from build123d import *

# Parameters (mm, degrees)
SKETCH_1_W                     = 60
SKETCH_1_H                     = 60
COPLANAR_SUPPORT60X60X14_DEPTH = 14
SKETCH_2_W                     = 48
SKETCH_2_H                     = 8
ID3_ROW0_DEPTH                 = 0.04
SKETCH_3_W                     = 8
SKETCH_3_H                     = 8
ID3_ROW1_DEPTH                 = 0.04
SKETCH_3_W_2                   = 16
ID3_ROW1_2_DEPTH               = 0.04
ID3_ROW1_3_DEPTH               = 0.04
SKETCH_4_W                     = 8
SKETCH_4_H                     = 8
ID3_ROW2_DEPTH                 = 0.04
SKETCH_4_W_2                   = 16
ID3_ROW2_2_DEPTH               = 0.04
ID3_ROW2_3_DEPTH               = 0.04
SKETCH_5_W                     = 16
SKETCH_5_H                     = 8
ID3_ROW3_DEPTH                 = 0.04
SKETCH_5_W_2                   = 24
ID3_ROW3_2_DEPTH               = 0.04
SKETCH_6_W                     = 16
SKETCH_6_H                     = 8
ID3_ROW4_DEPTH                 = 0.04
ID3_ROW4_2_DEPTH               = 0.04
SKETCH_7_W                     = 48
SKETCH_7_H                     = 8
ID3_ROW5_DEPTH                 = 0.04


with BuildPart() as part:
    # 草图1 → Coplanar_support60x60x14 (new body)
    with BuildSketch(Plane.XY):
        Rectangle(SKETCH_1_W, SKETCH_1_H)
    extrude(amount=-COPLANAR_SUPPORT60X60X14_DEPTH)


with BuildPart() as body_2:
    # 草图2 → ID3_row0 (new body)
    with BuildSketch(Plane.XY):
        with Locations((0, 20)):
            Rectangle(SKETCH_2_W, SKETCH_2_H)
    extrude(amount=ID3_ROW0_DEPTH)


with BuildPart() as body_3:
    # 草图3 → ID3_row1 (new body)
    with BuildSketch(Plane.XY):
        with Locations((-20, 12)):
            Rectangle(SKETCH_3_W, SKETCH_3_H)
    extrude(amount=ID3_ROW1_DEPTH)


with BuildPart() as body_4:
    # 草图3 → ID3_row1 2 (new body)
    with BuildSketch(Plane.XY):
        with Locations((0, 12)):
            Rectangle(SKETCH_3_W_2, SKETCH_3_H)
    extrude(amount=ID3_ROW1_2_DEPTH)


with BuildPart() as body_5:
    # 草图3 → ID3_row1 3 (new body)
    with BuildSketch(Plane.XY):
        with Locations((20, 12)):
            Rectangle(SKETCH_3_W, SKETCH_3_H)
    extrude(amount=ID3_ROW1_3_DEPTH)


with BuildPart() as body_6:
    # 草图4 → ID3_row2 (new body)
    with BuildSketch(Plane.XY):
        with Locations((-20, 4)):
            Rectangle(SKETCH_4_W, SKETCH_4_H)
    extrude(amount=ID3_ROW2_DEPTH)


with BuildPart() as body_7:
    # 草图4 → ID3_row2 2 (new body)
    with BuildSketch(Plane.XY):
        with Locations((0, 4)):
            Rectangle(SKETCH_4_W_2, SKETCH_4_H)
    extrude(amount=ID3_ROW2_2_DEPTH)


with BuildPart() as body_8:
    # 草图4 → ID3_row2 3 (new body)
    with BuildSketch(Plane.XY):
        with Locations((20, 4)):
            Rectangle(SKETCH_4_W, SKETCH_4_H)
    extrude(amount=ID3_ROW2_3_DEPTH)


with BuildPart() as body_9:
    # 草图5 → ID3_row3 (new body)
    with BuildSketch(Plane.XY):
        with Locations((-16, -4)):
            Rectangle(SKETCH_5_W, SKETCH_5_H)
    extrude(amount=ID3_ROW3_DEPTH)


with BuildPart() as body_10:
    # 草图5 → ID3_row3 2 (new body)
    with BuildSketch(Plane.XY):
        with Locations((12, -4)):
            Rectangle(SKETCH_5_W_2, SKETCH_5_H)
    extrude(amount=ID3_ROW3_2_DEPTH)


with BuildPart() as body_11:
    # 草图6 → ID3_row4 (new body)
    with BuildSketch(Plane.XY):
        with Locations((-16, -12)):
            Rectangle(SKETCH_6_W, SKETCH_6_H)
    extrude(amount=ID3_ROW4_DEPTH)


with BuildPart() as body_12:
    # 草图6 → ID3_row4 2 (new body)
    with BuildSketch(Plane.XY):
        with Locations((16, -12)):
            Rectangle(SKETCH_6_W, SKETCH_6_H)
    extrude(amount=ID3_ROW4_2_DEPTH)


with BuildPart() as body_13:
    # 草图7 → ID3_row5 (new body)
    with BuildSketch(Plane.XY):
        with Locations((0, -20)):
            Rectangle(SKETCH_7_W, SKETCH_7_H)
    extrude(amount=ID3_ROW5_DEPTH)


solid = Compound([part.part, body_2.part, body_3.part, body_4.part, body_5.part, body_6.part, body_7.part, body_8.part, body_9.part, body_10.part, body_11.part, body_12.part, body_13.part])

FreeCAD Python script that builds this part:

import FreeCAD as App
import Part
import Sketcher
from FreeCAD import Vector

doc = App.newDocument("Part")
body = doc.addObject("PartDesign::Body", "Body")

# Sketch on XY plane
sketch1 = doc.addObject("Sketcher::SketchObject", "Sketch")
body.addObject(sketch1)
sketch1.AttachmentSupport = (doc.XY_Plane, [""])
sketch1.MapMode = "FlatFace"
sketch1.addGeometry(Part.LineSegment(Vector(-30, 30, 0), Vector(-30, -30, 0)), False)
sketch1.addGeometry(Part.LineSegment(Vector(-30, -30, 0), Vector(30, -30, 0)), False)
sketch1.addGeometry(Part.LineSegment(Vector(30, -30, 0), Vector(30, 30, 0)), False)
sketch1.addGeometry(Part.LineSegment(Vector(30, 30, 0), Vector(-30, 30, 0)), False)
sketch1.addConstraint(Sketcher.Constraint("Coincident", 0, 2, 1, 1))
sketch1.addConstraint(Sketcher.Constraint("Coincident", 1, 2, 2, 1))
sketch1.addConstraint(Sketcher.Constraint("Coincident", 2, 2, 3, 1))
sketch1.addConstraint(Sketcher.Constraint("Coincident", 3, 2, 0, 1))
sketch1.addConstraint(Sketcher.Constraint("Vertical", 0))
sketch1.addConstraint(Sketcher.Constraint("Horizontal", 1))
sketch1.addConstraint(Sketcher.Constraint("Vertical", 2))
sketch1.addConstraint(Sketcher.Constraint("Horizontal", 3))
sketch1.addConstraint(Sketcher.Constraint("Symmetric", 0, 2, 2, 2, -1, 1))
sketch1.addConstraint(Sketcher.Constraint("Equal", 3, 0))
sketch1.addConstraint(Sketcher.Constraint("DistanceX", 1, 1, 1, 2, 60.0))
pad1 = doc.addObject("PartDesign::Pad", "Pad")
body.addObject(pad1)
pad1.Profile = sketch1
pad1.Length = 14
pad1.Reversed = True
body2 = doc.addObject("PartDesign::Body", "Body001")

# Sketch on XY plane
sketch2 = doc.addObject("Sketcher::SketchObject", "Sketch001")
body2.addObject(sketch2)
sketch2.AttachmentSupport = (doc.getObject("XY_Plane001"), [""])
sketch2.MapMode = "FlatFace"
sketch2.addGeometry(Part.LineSegment(Vector(-24, 24, 0), Vector(-24, 16, 0)), False)
sketch2.addGeometry(Part.LineSegment(Vector(-24, 16, 0), Vector(24, 16, 0)), False)
sketch2.addGeometry(Part.LineSegment(Vector(24, 16, 0), Vector(24, 24, 0)), False)
sketch2.addGeometry(Part.LineSegment(Vector(24, 24, 0), Vector(-24, 24, 0)), False)
sketch2.addConstraint(Sketcher.Constraint("Coincident", 0, 2, 1, 1))
sketch2.addConstraint(Sketcher.Constraint("Coincident", 1, 2, 2, 1))
sketch2.addConstraint(Sketcher.Constraint("Coincident", 2, 2, 3, 1))
sketch2.addConstraint(Sketcher.Constraint("Coincident", 3, 2, 0, 1))
sketch2.addConstraint(Sketcher.Constraint("Vertical", 0))
sketch2.addConstraint(Sketcher.Constraint("Horizontal", 1))
sketch2.addConstraint(Sketcher.Constraint("Vertical", 2))
sketch2.addConstraint(Sketcher.Constraint("Horizontal", 3))
sketch2.addConstraint(Sketcher.Constraint("DistanceX", 1, 1, 1, 2, 48.0))
sketch2.addConstraint(Sketcher.Constraint("DistanceY", 0, 2, 0, 1, 8.0))
sketch2.addConstraint(Sketcher.Constraint("DistanceX", 0, 2, -1, 1, 24.0))
sketch2.addConstraint(Sketcher.Constraint("DistanceY", -1, 1, 0, 2, 16.0))
pad2 = doc.addObject("PartDesign::Pad", "Pad001")
body2.addObject(pad2)
pad2.Profile = sketch2
pad2.Length = 0.04
body3 = doc.addObject("PartDesign::Body", "Body002")

# Sketch on XY plane
sketch3 = doc.addObject("Sketcher::SketchObject", "Sketch002")
body3.addObject(sketch3)
sketch3.AttachmentSupport = (doc.getObject("XY_Plane002"), [""])
sketch3.MapMode = "FlatFace"
sketch3.addGeometry(Part.LineSegment(Vector(-24, 16, 0), Vector(-24, 8, 0)), False)
sketch3.addGeometry(Part.LineSegment(Vector(-24, 8, 0), Vector(-16, 8, 0)), False)
sketch3.addGeometry(Part.LineSegment(Vector(-16, 8, 0), Vector(-16, 16, 0)), False)
sketch3.addGeometry(Part.LineSegment(Vector(-16, 16, 0), Vector(-24, 16, 0)), False)
sketch3.addConstraint(Sketcher.Constraint("Coincident", 0, 2, 1, 1))
sketch3.addConstraint(Sketcher.Constraint("Coincident", 1, 2, 2, 1))
sketch3.addConstraint(Sketcher.Constraint("Coincident", 2, 2, 3, 1))
sketch3.addConstraint(Sketcher.Constraint("Coincident", 3, 2, 0, 1))
sketch3.addConstraint(Sketcher.Constraint("Vertical", 0))
sketch3.addConstraint(Sketcher.Constraint("Horizontal", 1))
sketch3.addConstraint(Sketcher.Constraint("Vertical", 2))
sketch3.addConstraint(Sketcher.Constraint("Horizontal", 3))
sketch3.addConstraint(Sketcher.Constraint("Equal", 3, 0))
sketch3.addConstraint(Sketcher.Constraint("DistanceX", 1, 1, 1, 2, 8.0))
sketch3.addConstraint(Sketcher.Constraint("DistanceX", 0, 2, -1, 1, 24.0))
sketch3.addConstraint(Sketcher.Constraint("DistanceY", -1, 1, 0, 2, 8.0))
pad3 = doc.addObject("PartDesign::Pad", "Pad002")
body3.addObject(pad3)
pad3.Profile = sketch3
pad3.Length = 0.04
body4 = doc.addObject("PartDesign::Body", "Body003")

# Sketch on XY plane
sketch4 = doc.addObject("Sketcher::SketchObject", "Sketch003")
body4.addObject(sketch4)
sketch4.AttachmentSupport = (doc.getObject("XY_Plane003"), [""])
sketch4.MapMode = "FlatFace"
sketch4.addGeometry(Part.LineSegment(Vector(-8, 16, 0), Vector(-8, 8, 0)), False)
sketch4.addGeometry(Part.LineSegment(Vector(-8, 8, 0), Vector(8, 8, 0)), False)
sketch4.addGeometry(Part.LineSegment(Vector(8, 8, 0), Vector(8, 16, 0)), False)
sketch4.addGeometry(Part.LineSegment(Vector(8, 16, 0), Vector(-8, 16, 0)), False)
sketch4.addConstraint(Sketcher.Constraint("Coincident", 0, 2, 1, 1))
sketch4.addConstraint(Sketcher.Constraint("Coincident", 1, 2, 2, 1))
sketch4.addConstraint(Sketcher.Constraint("Coincident", 2, 2, 3, 1))
sketch4.addConstraint(Sketcher.Constraint("Coincident", 3, 2, 0, 1))
sketch4.addConstraint(Sketcher.Constraint("Vertical", 0))
sketch4.addConstraint(Sketcher.Constraint("Horizontal", 1))
sketch4.addConstraint(Sketcher.Constraint("Vertical", 2))
sketch4.addConstraint(Sketcher.Constraint("Horizontal", 3))
sketch4.addConstraint(Sketcher.Constraint("DistanceX", 1, 1, 1, 2, 16.0))
sketch4.addConstraint(Sketcher.Constraint("DistanceY", 0, 2, 0, 1, 8.0))
sketch4.addConstraint(Sketcher.Constraint("DistanceX", 0, 2, -1, 1, 8.0))
sketch4.addConstraint(Sketcher.Constraint("DistanceY", -1, 1, 0, 2, 8.0))
pad4 = doc.addObject("PartDesign::Pad", "Pad003")
body4.addObject(pad4)
pad4.Profile = sketch4
pad4.Length = 0.04
body5 = doc.addObject("PartDesign::Body", "Body004")

# Sketch on XY plane
sketch5 = doc.addObject("Sketcher::SketchObject", "Sketch004")
body5.addObject(sketch5)
sketch5.AttachmentSupport = (doc.getObject("XY_Plane004"), [""])
sketch5.MapMode = "FlatFace"
sketch5.addGeometry(Part.LineSegment(Vector(16, 16, 0), Vector(16, 8, 0)), False)
sketch5.addGeometry(Part.LineSegment(Vector(16, 8, 0), Vector(24, 8, 0)), False)
sketch5.addGeometry(Part.LineSegment(Vector(24, 8, 0), Vector(24, 16, 0)), False)
sketch5.addGeometry(Part.LineSegment(Vector(24, 16, 0), Vector(16, 16, 0)), False)
sketch5.addConstraint(Sketcher.Constraint("Coincident", 0, 2, 1, 1))
sketch5.addConstraint(Sketcher.Constraint("Coincident", 1, 2, 2, 1))
sketch5.addConstraint(Sketcher.Constraint("Coincident", 2, 2, 3, 1))
sketch5.addConstraint(Sketcher.Constraint("Coincident", 3, 2, 0, 1))
sketch5.addConstraint(Sketcher.Constraint("Vertical", 0))
sketch5.addConstraint(Sketcher.Constraint("Horizontal", 1))
sketch5.addConstraint(Sketcher.Constraint("Vertical", 2))
sketch5.addConstraint(Sketcher.Constraint("Horizontal", 3))
sketch5.addConstraint(Sketcher.Constraint("Equal", 3, 0))
sketch5.addConstraint(Sketcher.Constraint("DistanceX", 1, 1, 1, 2, 8.0))
sketch5.addConstraint(Sketcher.Constraint("DistanceX", -1, 1, 0, 2, 16.0))
sketch5.addConstraint(Sketcher.Constraint("DistanceY", -1, 1, 0, 2, 8.0))
pad5 = doc.addObject("PartDesign::Pad", "Pad004")
body5.addObject(pad5)
pad5.Profile = sketch5
pad5.Length = 0.04
body6 = doc.addObject("PartDesign::Body", "Body005")

# Sketch on XY plane
sketch6 = doc.addObject("Sketcher::SketchObject", "Sketch005")
body6.addObject(sketch6)
sketch6.AttachmentSupport = (doc.getObject("XY_Plane005"), [""])
sketch6.MapMode = "FlatFace"
sketch6.addGeometry(Part.LineSegment(Vector(-24, 8, 0), Vector(-24, 0, 0)), False)
sketch6.addGeometry(Part.LineSegment(Vector(-24, 0, 0), Vector(-16, 0, 0)), False)
sketch6.addGeometry(Part.LineSegment(Vector(-16, 0, 0), Vector(-16, 8, 0)), False)
sketch6.addGeometry(Part.LineSegment(Vector(-16, 8, 0), Vector(-24, 8, 0)), False)
sketch6.addConstraint(Sketcher.Constraint("Coincident", 0, 2, 1, 1))
sketch6.addConstraint(Sketcher.Constraint("Coincident", 1, 2, 2, 1))
sketch6.addConstraint(Sketcher.Constraint("Coincident", 2, 2, 3, 1))
sketch6.addConstraint(Sketcher.Constraint("Coincident", 3, 2, 0, 1))
sketch6.addConstraint(Sketcher.Constraint("Vertical", 0))
sketch6.addConstraint(Sketcher.Constraint("Horizontal", 1))
sketch6.addConstraint(Sketcher.Constraint("Vertical", 2))
sketch6.addConstraint(Sketcher.Constraint("Horizontal", 3))
sketch6.addConstraint(Sketcher.Constraint("PointOnObject", 0, 2, -1))
sketch6.addConstraint(Sketcher.Constraint("Equal", 3, 0))
sketch6.addConstraint(Sketcher.Constraint("DistanceX", 1, 1, 1, 2, 8.0))
sketch6.addConstraint(Sketcher.Constraint("DistanceX", 0, 2, -1, 1, 24.0))
pad6 = doc.addObject("PartDesign::Pad", "Pad005")
body6.addObject(pad6)
pad6.Profile = sketch6
pad6.Length = 0.04
body7 = doc.addObject("PartDesign::Body", "Body006")

# Sketch on XY plane
sketch7 = doc.addObject("Sketcher::SketchObject", "Sketch006")
body7.addObject(sketch7)
sketch7.AttachmentSupport = (doc.getObject("XY_Plane006"), [""])
sketch7.MapMode = "FlatFace"
sketch7.addGeometry(Part.LineSegment(Vector(-8, 8, 0), Vector(-8, 0, 0)), False)
sketch7.addGeometry(Part.LineSegment(Vector(-8, 0, 0), Vector(8, 0, 0)), False)
sketch7.addGeometry(Part.LineSegment(Vector(8, 0, 0), Vector(8, 8, 0)), False)
sketch7.addGeometry(Part.LineSegment(Vector(8, 8, 0), Vector(-8, 8, 0)), False)
sketch7.addConstraint(Sketcher.Constraint("Coincident", 0, 2, 1, 1))
sketch7.addConstraint(Sketcher.Constraint("Coincident", 1, 2, 2, 1))
sketch7.addConstraint(Sketcher.Constraint("Coincident", 2, 2, 3, 1))
sketch7.addConstraint(Sketcher.Constraint("Coincident", 3, 2, 0, 1))
sketch7.addConstraint(Sketcher.Constraint("Vertical", 0))
sketch7.addConstraint(Sketcher.Constraint("Horizontal", 1))
sketch7.addConstraint(Sketcher.Constraint("Vertical", 2))
sketch7.addConstraint(Sketcher.Constraint("Horizontal", 3))
sketch7.addConstraint(Sketcher.Constraint("Symmetric", 0, 2, 1, 2, -1, 1))
sketch7.addConstraint(Sketcher.Constraint("DistanceX", 1, 1, 1, 2, 16.0))
sketch7.addConstraint(Sketcher.Constraint("DistanceY", 0, 2, 0, 1, 8.0))
pad7 = doc.addObject("PartDesign::Pad", "Pad006")
body7.addObject(pad7)
pad7.Profile = sketch7
pad7.Length = 0.04
body8 = doc.addObject("PartDesign::Body", "Body007")

# Sketch on XY plane
sketch8 = doc.addObject("Sketcher::SketchObject", "Sketch007")
body8.addObject(sketch8)
sketch8.AttachmentSupport = (doc.getObject("XY_Plane007"), [""])
sketch8.MapMode = "FlatFace"
sketch8.addGeometry(Part.LineSegment(Vector(16, 8, 0), Vector(16, 0, 0)), False)
sketch8.addGeometry(Part.LineSegment(Vector(16, 0, 0), Vector(24, 0, 0)), False)
sketch8.addGeometry(Part.LineSegment(Vector(24, 0, 0), Vector(24, 8, 0)), False)
sketch8.addGeometry(Part.LineSegment(Vector(24, 8, 0), Vector(16, 8, 0)), False)
sketch8.addConstraint(Sketcher.Constraint("Coincident", 0, 2, 1, 1))
sketch8.addConstraint(Sketcher.Constraint("Coincident", 1, 2, 2, 1))
sketch8.addConstraint(Sketcher.Constraint("Coincident", 2, 2, 3, 1))
sketch8.addConstraint(Sketcher.Constraint("Coincident", 3, 2, 0, 1))
sketch8.addConstraint(Sketcher.Constraint("Vertical", 0))
sketch8.addConstraint(Sketcher.Constraint("Horizontal", 1))
sketch8.addConstraint(Sketcher.Constraint("Vertical", 2))
sketch8.addConstraint(Sketcher.Constraint("Horizontal", 3))
sketch8.addConstraint(Sketcher.Constraint("PointOnObject", 0, 2, -1))
sketch8.addConstraint(Sketcher.Constraint("Equal", 3, 0))
sketch8.addConstraint(Sketcher.Constraint("DistanceX", 1, 1, 1, 2, 8.0))
sketch8.addConstraint(Sketcher.Constraint("DistanceX", -1, 1, 0, 2, 16.0))
pad8 = doc.addObject("PartDesign::Pad", "Pad007")
body8.addObject(pad8)
pad8.Profile = sketch8
pad8.Length = 0.04
body9 = doc.addObject("PartDesign::Body", "Body008")

# Sketch on XY plane
sketch9 = doc.addObject("Sketcher::SketchObject", "Sketch008")
body9.addObject(sketch9)
sketch9.AttachmentSupport = (doc.getObject("XY_Plane008"), [""])
sketch9.MapMode = "FlatFace"
sketch9.addGeometry(Part.LineSegment(Vector(-24, 0, 0), Vector(-24, -8, 0)), False)
sketch9.addGeometry(Part.LineSegment(Vector(-24, -8, 0), Vector(-8, -8, 0)), False)
sketch9.addGeometry(Part.LineSegment(Vector(-8, -8, 0), Vector(-8, 0, 0)), False)
sketch9.addGeometry(Part.LineSegment(Vector(-8, 0, 0), Vector(-24, 0, 0)), False)
sketch9.addConstraint(Sketcher.Constraint("Coincident", 0, 2, 1, 1))
sketch9.addConstraint(Sketcher.Constraint("Coincident", 1, 2, 2, 1))
sketch9.addConstraint(Sketcher.Constraint("Coincident", 2, 2, 3, 1))
sketch9.addConstraint(Sketcher.Constraint("Coincident", 3, 2, 0, 1))
sketch9.addConstraint(Sketcher.Constraint("Vertical", 0))
sketch9.addConstraint(Sketcher.Constraint("Horizontal", 1))
sketch9.addConstraint(Sketcher.Constraint("Vertical", 2))
sketch9.addConstraint(Sketcher.Constraint("Horizontal", 3))
sketch9.addConstraint(Sketcher.Constraint("PointOnObject", 2, 2, -1))
sketch9.addConstraint(Sketcher.Constraint("DistanceX", 1, 1, 1, 2, 16.0))
sketch9.addConstraint(Sketcher.Constraint("DistanceY", 0, 2, 0, 1, 8.0))
sketch9.addConstraint(Sketcher.Constraint("DistanceX", 0, 2, -1, 1, 24.0))
pad9 = doc.addObject("PartDesign::Pad", "Pad008")
body9.addObject(pad9)
pad9.Profile = sketch9
pad9.Length = 0.04
body10 = doc.addObject("PartDesign::Body", "Body009")

# Sketch on XY plane
sketch10 = doc.addObject("Sketcher::SketchObject", "Sketch009")
body10.addObject(sketch10)
sketch10.AttachmentSupport = (doc.getObject("XY_Plane009"), [""])
sketch10.MapMode = "FlatFace"
sketch10.addGeometry(Part.LineSegment(Vector(0, 0, 0), Vector(0, -8, 0)), False)
sketch10.addGeometry(Part.LineSegment(Vector(0, -8, 0), Vector(24, -8, 0)), False)
sketch10.addGeometry(Part.LineSegment(Vector(24, -8, 0), Vector(24, 0, 0)), False)
sketch10.addGeometry(Part.LineSegment(Vector(24, 0, 0), Vector(0, 0, 0)), False)
sketch10.addConstraint(Sketcher.Constraint("Coincident", 0, 2, 1, 1))
sketch10.addConstraint(Sketcher.Constraint("Coincident", 1, 2, 2, 1))
sketch10.addConstraint(Sketcher.Constraint("Coincident", 2, 2, 3, 1))
sketch10.addConstraint(Sketcher.Constraint("Coincident", 3, 2, 0, 1))
sketch10.addConstraint(Sketcher.Constraint("Vertical", 0))
sketch10.addConstraint(Sketcher.Constraint("Horizontal", 1))
sketch10.addConstraint(Sketcher.Constraint("Vertical", 2))
sketch10.addConstraint(Sketcher.Constraint("Horizontal", 3))
sketch10.addConstraint(Sketcher.Constraint("Coincident", 3, 2, -1, 1))
sketch10.addConstraint(Sketcher.Constraint("DistanceX", 1, 1, 1, 2, 24.0))
sketch10.addConstraint(Sketcher.Constraint("DistanceY", 0, 2, 0, 1, 8.0))
pad10 = doc.addObject("PartDesign::Pad", "Pad009")
body10.addObject(pad10)
pad10.Profile = sketch10
pad10.Length = 0.04
body11 = doc.addObject("PartDesign::Body", "Body010")

# Sketch on XY plane
sketch11 = doc.addObject("Sketcher::SketchObject", "Sketch010")
body11.addObject(sketch11)
sketch11.AttachmentSupport = (doc.getObject("XY_Plane010"), [""])
sketch11.MapMode = "FlatFace"
sketch11.addGeometry(Part.LineSegment(Vector(-24, -8, 0), Vector(-24, -16, 0)), False)
sketch11.addGeometry(Part.LineSegment(Vector(-24, -16, 0), Vector(-8, -16, 0)), False)
sketch11.addGeometry(Part.LineSegment(Vector(-8, -16, 0), Vector(-8, -8, 0)), False)
sketch11.addGeometry(Part.LineSegment(Vector(-8, -8, 0), Vector(-24, -8, 0)), False)
sketch11.addConstraint(Sketcher.Constraint("Coincident", 0, 2, 1, 1))
sketch11.addConstraint(Sketcher.Constraint("Coincident", 1, 2, 2, 1))
sketch11.addConstraint(Sketcher.Constraint("Coincident", 2, 2, 3, 1))
sketch11.addConstraint(Sketcher.Constraint("Coincident", 3, 2, 0, 1))
sketch11.addConstraint(Sketcher.Constraint("Vertical", 0))
sketch11.addConstraint(Sketcher.Constraint("Horizontal", 1))
sketch11.addConstraint(Sketcher.Constraint("Vertical", 2))
sketch11.addConstraint(Sketcher.Constraint("Horizontal", 3))
sketch11.addConstraint(Sketcher.Constraint("DistanceX", 1, 1, 1, 2, 16.0))
sketch11.addConstraint(Sketcher.Constraint("DistanceY", 0, 2, 0, 1, 8.0))
sketch11.addConstraint(Sketcher.Constraint("DistanceX", 0, 2, -1, 1, 24.0))
sketch11.addConstraint(Sketcher.Constraint("DistanceY", 0, 2, -1, 1, 16.0))
pad11 = doc.addObject("PartDesign::Pad", "Pad010")
body11.addObject(pad11)
pad11.Profile = sketch11
pad11.Length = 0.04
body12 = doc.addObject("PartDesign::Body", "Body011")

# Sketch on XY plane
sketch12 = doc.addObject("Sketcher::SketchObject", "Sketch011")
body12.addObject(sketch12)
sketch12.AttachmentSupport = (doc.getObject("XY_Plane011"), [""])
sketch12.MapMode = "FlatFace"
sketch12.addGeometry(Part.LineSegment(Vector(8, -8, 0), Vector(8, -16, 0)), False)
sketch12.addGeometry(Part.LineSegment(Vector(8, -16, 0), Vector(24, -16, 0)), False)
sketch12.addGeometry(Part.LineSegment(Vector(24, -16, 0), Vector(24, -8, 0)), False)
sketch12.addGeometry(Part.LineSegment(Vector(24, -8, 0), Vector(8, -8, 0)), False)
sketch12.addConstraint(Sketcher.Constraint("Coincident", 0, 2, 1, 1))
sketch12.addConstraint(Sketcher.Constraint("Coincident", 1, 2, 2, 1))
sketch12.addConstraint(Sketcher.Constraint("Coincident", 2, 2, 3, 1))
sketch12.addConstraint(Sketcher.Constraint("Coincident", 3, 2, 0, 1))
sketch12.addConstraint(Sketcher.Constraint("Vertical", 0))
sketch12.addConstraint(Sketcher.Constraint("Horizontal", 1))
sketch12.addConstraint(Sketcher.Constraint("Vertical", 2))
sketch12.addConstraint(Sketcher.Constraint("Horizontal", 3))
sketch12.addConstraint(Sketcher.Constraint("DistanceX", 1, 1, 1, 2, 16.0))
sketch12.addConstraint(Sketcher.Constraint("DistanceY", 0, 2, 0, 1, 8.0))
sketch12.addConstraint(Sketcher.Constraint("DistanceX", -1, 1, 0, 2, 8.0))
sketch12.addConstraint(Sketcher.Constraint("DistanceY", 0, 2, -1, 1, 16.0))
pad12 = doc.addObject("PartDesign::Pad", "Pad011")
body12.addObject(pad12)
pad12.Profile = sketch12
pad12.Length = 0.04
body13 = doc.addObject("PartDesign::Body", "Body012")

# Sketch on XY plane
sketch13 = doc.addObject("Sketcher::SketchObject", "Sketch012")
body13.addObject(sketch13)
sketch13.AttachmentSupport = (doc.getObject("XY_Plane012"), [""])
sketch13.MapMode = "FlatFace"
sketch13.addGeometry(Part.LineSegment(Vector(-24, -16, 0), Vector(-24, -24, 0)), False)
sketch13.addGeometry(Part.LineSegment(Vector(-24, -24, 0), Vector(24, -24, 0)), False)
sketch13.addGeometry(Part.LineSegment(Vector(24, -24, 0), Vector(24, -16, 0)), False)
sketch13.addGeometry(Part.LineSegment(Vector(24, -16, 0), Vector(-24, -16, 0)), False)
sketch13.addConstraint(Sketcher.Constraint("Coincident", 0, 2, 1, 1))
sketch13.addConstraint(Sketcher.Constraint("Coincident", 1, 2, 2, 1))
sketch13.addConstraint(Sketcher.Constraint("Coincident", 2, 2, 3, 1))
sketch13.addConstraint(Sketcher.Constraint("Coincident", 3, 2, 0, 1))
sketch13.addConstraint(Sketcher.Constraint("Vertical", 0))
sketch13.addConstraint(Sketcher.Constraint("Horizontal", 1))
sketch13.addConstraint(Sketcher.Constraint("Vertical", 2))
sketch13.addConstraint(Sketcher.Constraint("Horizontal", 3))
sketch13.addConstraint(Sketcher.Constraint("DistanceX", 1, 1, 1, 2, 48.0))
sketch13.addConstraint(Sketcher.Constraint("DistanceY", 0, 2, 0, 1, 8.0))
sketch13.addConstraint(Sketcher.Constraint("DistanceX", 0, 2, -1, 1, 24.0))
sketch13.addConstraint(Sketcher.Constraint("DistanceY", 0, 2, -1, 1, 24.0))
pad13 = doc.addObject("PartDesign::Pad", "Pad012")
body13.addObject(pad13)
pad13.Profile = sketch13
pad13.Length = 0.04

doc.recompute()
